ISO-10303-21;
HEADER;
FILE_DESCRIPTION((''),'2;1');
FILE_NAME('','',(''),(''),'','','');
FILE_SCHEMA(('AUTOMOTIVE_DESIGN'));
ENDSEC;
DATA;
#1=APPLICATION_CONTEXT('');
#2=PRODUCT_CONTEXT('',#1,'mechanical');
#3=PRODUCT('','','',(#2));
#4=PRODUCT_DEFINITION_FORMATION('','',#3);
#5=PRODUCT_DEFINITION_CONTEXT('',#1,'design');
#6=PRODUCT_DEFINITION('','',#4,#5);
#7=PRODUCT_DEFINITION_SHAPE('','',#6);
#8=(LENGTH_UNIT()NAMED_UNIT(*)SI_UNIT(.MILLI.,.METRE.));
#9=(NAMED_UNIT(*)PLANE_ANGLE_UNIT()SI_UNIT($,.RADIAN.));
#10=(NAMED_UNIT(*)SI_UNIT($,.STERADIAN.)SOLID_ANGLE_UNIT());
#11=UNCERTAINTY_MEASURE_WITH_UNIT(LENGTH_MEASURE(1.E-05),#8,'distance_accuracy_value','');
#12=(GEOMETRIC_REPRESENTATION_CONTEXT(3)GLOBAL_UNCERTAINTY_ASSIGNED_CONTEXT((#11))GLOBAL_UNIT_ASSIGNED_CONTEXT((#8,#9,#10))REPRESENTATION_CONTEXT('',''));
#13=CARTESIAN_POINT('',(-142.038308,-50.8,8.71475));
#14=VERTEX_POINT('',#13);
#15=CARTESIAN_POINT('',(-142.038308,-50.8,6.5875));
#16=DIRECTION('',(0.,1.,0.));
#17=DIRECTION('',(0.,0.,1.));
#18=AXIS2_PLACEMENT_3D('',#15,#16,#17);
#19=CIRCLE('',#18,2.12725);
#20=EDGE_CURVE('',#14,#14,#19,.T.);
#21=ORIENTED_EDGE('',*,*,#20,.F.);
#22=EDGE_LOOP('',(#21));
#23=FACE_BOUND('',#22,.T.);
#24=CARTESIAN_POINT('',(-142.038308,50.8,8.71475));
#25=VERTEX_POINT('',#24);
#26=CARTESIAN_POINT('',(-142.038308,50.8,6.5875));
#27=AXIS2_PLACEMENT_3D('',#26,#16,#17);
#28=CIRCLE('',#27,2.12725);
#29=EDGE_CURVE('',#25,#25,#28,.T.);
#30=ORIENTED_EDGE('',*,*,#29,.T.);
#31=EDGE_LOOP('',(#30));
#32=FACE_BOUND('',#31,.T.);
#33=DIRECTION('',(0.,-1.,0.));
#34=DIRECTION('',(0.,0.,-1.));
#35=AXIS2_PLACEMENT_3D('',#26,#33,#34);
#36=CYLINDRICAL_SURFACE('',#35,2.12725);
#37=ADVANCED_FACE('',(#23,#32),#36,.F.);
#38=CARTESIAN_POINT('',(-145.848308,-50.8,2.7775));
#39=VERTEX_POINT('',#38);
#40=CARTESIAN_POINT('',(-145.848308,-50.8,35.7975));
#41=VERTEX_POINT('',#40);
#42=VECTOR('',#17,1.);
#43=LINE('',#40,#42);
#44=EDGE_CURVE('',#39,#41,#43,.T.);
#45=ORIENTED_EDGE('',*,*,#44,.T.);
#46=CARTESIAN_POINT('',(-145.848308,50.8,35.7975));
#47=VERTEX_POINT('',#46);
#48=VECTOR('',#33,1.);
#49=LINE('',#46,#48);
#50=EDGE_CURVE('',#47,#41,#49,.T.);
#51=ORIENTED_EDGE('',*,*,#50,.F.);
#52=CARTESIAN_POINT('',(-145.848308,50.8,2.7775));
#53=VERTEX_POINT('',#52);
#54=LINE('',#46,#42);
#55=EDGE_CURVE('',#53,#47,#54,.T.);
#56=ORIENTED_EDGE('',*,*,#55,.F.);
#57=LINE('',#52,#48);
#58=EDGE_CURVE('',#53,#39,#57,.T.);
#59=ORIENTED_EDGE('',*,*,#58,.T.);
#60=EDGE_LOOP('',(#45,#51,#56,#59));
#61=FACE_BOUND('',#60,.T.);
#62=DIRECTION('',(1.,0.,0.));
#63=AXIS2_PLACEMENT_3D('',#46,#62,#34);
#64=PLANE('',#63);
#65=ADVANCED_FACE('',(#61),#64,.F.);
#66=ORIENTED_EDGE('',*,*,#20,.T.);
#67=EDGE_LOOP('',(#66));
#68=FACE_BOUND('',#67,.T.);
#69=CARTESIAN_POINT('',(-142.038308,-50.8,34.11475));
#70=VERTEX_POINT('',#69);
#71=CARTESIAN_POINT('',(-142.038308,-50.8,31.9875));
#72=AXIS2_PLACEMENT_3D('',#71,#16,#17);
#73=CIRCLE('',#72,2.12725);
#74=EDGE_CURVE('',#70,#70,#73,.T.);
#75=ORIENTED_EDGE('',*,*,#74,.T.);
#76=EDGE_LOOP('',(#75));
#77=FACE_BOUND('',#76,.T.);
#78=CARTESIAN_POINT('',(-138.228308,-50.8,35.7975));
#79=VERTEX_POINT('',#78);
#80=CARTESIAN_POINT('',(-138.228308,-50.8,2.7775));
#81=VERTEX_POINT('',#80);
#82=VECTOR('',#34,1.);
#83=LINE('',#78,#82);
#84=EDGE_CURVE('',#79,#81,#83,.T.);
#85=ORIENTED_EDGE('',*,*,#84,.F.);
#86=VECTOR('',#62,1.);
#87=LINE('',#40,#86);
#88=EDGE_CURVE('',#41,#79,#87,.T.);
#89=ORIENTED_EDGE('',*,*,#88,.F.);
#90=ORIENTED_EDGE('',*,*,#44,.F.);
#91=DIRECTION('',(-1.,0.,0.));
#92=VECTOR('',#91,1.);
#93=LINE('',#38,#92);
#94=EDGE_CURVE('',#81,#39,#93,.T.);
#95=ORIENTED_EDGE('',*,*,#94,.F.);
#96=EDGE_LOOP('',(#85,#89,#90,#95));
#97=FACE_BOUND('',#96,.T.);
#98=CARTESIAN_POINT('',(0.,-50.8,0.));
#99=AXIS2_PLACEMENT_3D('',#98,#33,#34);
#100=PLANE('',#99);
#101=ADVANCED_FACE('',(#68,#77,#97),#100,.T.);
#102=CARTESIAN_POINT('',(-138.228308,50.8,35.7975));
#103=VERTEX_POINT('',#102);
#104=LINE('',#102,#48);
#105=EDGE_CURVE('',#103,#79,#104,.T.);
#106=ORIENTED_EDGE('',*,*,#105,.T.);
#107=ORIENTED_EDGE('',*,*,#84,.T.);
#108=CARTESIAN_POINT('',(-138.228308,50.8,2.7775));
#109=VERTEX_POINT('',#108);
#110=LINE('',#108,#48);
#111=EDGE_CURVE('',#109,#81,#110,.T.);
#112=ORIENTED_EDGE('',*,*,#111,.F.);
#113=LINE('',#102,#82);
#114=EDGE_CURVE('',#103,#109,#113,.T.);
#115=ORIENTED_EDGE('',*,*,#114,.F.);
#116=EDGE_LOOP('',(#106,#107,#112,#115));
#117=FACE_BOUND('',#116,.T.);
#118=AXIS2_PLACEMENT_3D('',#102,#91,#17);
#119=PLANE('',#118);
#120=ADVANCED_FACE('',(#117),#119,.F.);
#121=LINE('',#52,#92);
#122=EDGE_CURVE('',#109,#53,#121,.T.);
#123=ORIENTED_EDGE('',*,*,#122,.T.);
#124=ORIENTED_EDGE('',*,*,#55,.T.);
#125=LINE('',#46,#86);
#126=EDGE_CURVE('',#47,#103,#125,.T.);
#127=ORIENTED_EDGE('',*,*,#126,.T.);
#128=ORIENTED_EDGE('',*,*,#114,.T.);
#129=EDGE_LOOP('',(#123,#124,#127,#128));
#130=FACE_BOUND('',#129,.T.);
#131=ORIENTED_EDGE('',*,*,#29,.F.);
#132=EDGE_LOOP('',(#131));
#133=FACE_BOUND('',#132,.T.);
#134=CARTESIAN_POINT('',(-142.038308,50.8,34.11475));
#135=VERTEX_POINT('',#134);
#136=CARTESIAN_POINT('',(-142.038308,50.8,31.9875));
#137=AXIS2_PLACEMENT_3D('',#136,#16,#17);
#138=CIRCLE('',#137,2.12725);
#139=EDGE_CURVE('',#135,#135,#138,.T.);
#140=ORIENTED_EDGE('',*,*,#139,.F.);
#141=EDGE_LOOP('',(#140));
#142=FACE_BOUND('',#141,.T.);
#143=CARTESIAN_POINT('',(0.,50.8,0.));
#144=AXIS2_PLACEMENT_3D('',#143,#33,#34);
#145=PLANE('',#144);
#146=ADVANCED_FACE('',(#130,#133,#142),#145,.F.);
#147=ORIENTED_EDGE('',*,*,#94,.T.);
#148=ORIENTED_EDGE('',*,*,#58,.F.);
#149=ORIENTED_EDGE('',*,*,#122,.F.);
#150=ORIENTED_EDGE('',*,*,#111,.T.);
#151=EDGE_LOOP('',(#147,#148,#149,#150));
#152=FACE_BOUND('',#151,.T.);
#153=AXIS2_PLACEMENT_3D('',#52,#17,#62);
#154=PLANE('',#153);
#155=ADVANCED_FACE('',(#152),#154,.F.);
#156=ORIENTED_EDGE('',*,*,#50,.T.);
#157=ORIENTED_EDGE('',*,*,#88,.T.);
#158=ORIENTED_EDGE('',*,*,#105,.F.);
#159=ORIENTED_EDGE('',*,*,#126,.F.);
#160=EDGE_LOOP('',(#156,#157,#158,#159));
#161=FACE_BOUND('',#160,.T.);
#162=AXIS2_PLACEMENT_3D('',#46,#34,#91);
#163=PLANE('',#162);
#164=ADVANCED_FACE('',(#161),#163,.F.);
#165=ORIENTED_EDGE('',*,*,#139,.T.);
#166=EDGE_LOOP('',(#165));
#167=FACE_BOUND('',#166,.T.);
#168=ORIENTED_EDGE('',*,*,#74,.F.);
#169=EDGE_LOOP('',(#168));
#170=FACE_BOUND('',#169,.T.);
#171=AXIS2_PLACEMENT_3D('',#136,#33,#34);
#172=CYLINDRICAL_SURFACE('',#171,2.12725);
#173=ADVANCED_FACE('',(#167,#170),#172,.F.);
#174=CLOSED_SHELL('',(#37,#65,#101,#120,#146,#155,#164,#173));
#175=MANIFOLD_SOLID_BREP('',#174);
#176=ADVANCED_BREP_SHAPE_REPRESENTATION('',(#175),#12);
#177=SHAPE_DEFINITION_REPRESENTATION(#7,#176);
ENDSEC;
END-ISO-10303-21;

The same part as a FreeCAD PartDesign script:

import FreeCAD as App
import Part
import Sketcher
from FreeCAD import Vector
Q = App.Units.Quantity

doc = App.newDocument("Part")
body = doc.addObject("PartDesign::Body", "Body")

sketch1 = doc.addObject("Sketcher::SketchObject", "Sketch")
body.addObject(sketch1)
sketch1.AttachmentSupport = (doc.XZ_Plane, [""])
sketch1.MapMode = "FlatFace"
sketch1.addGeometry(Part.LineSegment(Vector(-145.8, 2.8, 0), Vector(-145.8, 35.8, 0)), False)
sketch1.addGeometry(Part.LineSegment(Vector(-145.8, 35.8, 0), Vector(-138.2, 35.8, 0)), False)
sketch1.addGeometry(Part.LineSegment(Vector(-138.2, 35.8, 0), Vector(-138.2, 2.8, 0)), False)
sketch1.addGeometry(Part.LineSegment(Vector(-138.2, 2.8, 0), Vector(-145.8, 2.8, 0)), False)
sketch1.addGeometry(Part.Circle(Vector(-142, 32, 0), Vector(0, 0, 1), 2.1), False)
sketch1.addGeometry(Part.Circle(Vector(-142, 6.6, 0), Vector(0, 0, 1), 2.1), False)
sketch1.addConstraint(Sketcher.Constraint("Coincident", 0, 2, 1, 1))
sketch1.addConstraint(Sketcher.Constraint("Coincident", 1, 2, 2, 1))
sketch1.addConstraint(Sketcher.Constraint("Coincident", 2, 2, 3, 1))
sketch1.addConstraint(Sketcher.Constraint("Coincident", 3, 2, 0, 1))
sketch1.addConstraint(Sketcher.Constraint("Vertical", 0))
sketch1.addConstraint(Sketcher.Constraint("Horizontal", 1))
sketch1.addConstraint(Sketcher.Constraint("Vertical", 2))
sketch1.addConstraint(Sketcher.Constraint("Horizontal", 3))
sketch1.addConstraint(Sketcher.Constraint("Equal", 4, 5))
sketch1.addConstraint(Sketcher.Constraint("Vertical", 4, 3, 5, 3))
sketch1.addConstraint(Sketcher.Constraint("DistanceX", 1, 1, 1, 2, Q("0.3 in")))
sketch1.addConstraint(Sketcher.Constraint("DistanceY", 0, 1, 0, 2, Q("1.3 in")))
sketch1.addConstraint(Sketcher.Constraint("DistanceY", 5, 3, 4, 3, Q("1 in")))
sketch1.addConstraint(Sketcher.Constraint("Diameter", 4, Q("0.1675 in")))
sketch1.addConstraint(Sketcher.Constraint("DistanceX", 0, 2, 4, 3, Q("0.15 in")))
sketch1.addConstraint(Sketcher.Constraint("DistanceY", 4, 3, 0, 2, Q("0.15 in")))
sketch1.addConstraint(Sketcher.Constraint("DistanceY", -1, 1, 4, 3, 31.9875))
sketch1.addConstraint(Sketcher.Constraint("DistanceX", 4, 3, -1, 1, 142.038308))
pad1 = doc.addObject("PartDesign::Pad", "Pad")
body.addObject(pad1)
pad1.Profile = sketch1
pad1.Length = Q("4 in")
pad1.Midplane = True

doc.recompute()
